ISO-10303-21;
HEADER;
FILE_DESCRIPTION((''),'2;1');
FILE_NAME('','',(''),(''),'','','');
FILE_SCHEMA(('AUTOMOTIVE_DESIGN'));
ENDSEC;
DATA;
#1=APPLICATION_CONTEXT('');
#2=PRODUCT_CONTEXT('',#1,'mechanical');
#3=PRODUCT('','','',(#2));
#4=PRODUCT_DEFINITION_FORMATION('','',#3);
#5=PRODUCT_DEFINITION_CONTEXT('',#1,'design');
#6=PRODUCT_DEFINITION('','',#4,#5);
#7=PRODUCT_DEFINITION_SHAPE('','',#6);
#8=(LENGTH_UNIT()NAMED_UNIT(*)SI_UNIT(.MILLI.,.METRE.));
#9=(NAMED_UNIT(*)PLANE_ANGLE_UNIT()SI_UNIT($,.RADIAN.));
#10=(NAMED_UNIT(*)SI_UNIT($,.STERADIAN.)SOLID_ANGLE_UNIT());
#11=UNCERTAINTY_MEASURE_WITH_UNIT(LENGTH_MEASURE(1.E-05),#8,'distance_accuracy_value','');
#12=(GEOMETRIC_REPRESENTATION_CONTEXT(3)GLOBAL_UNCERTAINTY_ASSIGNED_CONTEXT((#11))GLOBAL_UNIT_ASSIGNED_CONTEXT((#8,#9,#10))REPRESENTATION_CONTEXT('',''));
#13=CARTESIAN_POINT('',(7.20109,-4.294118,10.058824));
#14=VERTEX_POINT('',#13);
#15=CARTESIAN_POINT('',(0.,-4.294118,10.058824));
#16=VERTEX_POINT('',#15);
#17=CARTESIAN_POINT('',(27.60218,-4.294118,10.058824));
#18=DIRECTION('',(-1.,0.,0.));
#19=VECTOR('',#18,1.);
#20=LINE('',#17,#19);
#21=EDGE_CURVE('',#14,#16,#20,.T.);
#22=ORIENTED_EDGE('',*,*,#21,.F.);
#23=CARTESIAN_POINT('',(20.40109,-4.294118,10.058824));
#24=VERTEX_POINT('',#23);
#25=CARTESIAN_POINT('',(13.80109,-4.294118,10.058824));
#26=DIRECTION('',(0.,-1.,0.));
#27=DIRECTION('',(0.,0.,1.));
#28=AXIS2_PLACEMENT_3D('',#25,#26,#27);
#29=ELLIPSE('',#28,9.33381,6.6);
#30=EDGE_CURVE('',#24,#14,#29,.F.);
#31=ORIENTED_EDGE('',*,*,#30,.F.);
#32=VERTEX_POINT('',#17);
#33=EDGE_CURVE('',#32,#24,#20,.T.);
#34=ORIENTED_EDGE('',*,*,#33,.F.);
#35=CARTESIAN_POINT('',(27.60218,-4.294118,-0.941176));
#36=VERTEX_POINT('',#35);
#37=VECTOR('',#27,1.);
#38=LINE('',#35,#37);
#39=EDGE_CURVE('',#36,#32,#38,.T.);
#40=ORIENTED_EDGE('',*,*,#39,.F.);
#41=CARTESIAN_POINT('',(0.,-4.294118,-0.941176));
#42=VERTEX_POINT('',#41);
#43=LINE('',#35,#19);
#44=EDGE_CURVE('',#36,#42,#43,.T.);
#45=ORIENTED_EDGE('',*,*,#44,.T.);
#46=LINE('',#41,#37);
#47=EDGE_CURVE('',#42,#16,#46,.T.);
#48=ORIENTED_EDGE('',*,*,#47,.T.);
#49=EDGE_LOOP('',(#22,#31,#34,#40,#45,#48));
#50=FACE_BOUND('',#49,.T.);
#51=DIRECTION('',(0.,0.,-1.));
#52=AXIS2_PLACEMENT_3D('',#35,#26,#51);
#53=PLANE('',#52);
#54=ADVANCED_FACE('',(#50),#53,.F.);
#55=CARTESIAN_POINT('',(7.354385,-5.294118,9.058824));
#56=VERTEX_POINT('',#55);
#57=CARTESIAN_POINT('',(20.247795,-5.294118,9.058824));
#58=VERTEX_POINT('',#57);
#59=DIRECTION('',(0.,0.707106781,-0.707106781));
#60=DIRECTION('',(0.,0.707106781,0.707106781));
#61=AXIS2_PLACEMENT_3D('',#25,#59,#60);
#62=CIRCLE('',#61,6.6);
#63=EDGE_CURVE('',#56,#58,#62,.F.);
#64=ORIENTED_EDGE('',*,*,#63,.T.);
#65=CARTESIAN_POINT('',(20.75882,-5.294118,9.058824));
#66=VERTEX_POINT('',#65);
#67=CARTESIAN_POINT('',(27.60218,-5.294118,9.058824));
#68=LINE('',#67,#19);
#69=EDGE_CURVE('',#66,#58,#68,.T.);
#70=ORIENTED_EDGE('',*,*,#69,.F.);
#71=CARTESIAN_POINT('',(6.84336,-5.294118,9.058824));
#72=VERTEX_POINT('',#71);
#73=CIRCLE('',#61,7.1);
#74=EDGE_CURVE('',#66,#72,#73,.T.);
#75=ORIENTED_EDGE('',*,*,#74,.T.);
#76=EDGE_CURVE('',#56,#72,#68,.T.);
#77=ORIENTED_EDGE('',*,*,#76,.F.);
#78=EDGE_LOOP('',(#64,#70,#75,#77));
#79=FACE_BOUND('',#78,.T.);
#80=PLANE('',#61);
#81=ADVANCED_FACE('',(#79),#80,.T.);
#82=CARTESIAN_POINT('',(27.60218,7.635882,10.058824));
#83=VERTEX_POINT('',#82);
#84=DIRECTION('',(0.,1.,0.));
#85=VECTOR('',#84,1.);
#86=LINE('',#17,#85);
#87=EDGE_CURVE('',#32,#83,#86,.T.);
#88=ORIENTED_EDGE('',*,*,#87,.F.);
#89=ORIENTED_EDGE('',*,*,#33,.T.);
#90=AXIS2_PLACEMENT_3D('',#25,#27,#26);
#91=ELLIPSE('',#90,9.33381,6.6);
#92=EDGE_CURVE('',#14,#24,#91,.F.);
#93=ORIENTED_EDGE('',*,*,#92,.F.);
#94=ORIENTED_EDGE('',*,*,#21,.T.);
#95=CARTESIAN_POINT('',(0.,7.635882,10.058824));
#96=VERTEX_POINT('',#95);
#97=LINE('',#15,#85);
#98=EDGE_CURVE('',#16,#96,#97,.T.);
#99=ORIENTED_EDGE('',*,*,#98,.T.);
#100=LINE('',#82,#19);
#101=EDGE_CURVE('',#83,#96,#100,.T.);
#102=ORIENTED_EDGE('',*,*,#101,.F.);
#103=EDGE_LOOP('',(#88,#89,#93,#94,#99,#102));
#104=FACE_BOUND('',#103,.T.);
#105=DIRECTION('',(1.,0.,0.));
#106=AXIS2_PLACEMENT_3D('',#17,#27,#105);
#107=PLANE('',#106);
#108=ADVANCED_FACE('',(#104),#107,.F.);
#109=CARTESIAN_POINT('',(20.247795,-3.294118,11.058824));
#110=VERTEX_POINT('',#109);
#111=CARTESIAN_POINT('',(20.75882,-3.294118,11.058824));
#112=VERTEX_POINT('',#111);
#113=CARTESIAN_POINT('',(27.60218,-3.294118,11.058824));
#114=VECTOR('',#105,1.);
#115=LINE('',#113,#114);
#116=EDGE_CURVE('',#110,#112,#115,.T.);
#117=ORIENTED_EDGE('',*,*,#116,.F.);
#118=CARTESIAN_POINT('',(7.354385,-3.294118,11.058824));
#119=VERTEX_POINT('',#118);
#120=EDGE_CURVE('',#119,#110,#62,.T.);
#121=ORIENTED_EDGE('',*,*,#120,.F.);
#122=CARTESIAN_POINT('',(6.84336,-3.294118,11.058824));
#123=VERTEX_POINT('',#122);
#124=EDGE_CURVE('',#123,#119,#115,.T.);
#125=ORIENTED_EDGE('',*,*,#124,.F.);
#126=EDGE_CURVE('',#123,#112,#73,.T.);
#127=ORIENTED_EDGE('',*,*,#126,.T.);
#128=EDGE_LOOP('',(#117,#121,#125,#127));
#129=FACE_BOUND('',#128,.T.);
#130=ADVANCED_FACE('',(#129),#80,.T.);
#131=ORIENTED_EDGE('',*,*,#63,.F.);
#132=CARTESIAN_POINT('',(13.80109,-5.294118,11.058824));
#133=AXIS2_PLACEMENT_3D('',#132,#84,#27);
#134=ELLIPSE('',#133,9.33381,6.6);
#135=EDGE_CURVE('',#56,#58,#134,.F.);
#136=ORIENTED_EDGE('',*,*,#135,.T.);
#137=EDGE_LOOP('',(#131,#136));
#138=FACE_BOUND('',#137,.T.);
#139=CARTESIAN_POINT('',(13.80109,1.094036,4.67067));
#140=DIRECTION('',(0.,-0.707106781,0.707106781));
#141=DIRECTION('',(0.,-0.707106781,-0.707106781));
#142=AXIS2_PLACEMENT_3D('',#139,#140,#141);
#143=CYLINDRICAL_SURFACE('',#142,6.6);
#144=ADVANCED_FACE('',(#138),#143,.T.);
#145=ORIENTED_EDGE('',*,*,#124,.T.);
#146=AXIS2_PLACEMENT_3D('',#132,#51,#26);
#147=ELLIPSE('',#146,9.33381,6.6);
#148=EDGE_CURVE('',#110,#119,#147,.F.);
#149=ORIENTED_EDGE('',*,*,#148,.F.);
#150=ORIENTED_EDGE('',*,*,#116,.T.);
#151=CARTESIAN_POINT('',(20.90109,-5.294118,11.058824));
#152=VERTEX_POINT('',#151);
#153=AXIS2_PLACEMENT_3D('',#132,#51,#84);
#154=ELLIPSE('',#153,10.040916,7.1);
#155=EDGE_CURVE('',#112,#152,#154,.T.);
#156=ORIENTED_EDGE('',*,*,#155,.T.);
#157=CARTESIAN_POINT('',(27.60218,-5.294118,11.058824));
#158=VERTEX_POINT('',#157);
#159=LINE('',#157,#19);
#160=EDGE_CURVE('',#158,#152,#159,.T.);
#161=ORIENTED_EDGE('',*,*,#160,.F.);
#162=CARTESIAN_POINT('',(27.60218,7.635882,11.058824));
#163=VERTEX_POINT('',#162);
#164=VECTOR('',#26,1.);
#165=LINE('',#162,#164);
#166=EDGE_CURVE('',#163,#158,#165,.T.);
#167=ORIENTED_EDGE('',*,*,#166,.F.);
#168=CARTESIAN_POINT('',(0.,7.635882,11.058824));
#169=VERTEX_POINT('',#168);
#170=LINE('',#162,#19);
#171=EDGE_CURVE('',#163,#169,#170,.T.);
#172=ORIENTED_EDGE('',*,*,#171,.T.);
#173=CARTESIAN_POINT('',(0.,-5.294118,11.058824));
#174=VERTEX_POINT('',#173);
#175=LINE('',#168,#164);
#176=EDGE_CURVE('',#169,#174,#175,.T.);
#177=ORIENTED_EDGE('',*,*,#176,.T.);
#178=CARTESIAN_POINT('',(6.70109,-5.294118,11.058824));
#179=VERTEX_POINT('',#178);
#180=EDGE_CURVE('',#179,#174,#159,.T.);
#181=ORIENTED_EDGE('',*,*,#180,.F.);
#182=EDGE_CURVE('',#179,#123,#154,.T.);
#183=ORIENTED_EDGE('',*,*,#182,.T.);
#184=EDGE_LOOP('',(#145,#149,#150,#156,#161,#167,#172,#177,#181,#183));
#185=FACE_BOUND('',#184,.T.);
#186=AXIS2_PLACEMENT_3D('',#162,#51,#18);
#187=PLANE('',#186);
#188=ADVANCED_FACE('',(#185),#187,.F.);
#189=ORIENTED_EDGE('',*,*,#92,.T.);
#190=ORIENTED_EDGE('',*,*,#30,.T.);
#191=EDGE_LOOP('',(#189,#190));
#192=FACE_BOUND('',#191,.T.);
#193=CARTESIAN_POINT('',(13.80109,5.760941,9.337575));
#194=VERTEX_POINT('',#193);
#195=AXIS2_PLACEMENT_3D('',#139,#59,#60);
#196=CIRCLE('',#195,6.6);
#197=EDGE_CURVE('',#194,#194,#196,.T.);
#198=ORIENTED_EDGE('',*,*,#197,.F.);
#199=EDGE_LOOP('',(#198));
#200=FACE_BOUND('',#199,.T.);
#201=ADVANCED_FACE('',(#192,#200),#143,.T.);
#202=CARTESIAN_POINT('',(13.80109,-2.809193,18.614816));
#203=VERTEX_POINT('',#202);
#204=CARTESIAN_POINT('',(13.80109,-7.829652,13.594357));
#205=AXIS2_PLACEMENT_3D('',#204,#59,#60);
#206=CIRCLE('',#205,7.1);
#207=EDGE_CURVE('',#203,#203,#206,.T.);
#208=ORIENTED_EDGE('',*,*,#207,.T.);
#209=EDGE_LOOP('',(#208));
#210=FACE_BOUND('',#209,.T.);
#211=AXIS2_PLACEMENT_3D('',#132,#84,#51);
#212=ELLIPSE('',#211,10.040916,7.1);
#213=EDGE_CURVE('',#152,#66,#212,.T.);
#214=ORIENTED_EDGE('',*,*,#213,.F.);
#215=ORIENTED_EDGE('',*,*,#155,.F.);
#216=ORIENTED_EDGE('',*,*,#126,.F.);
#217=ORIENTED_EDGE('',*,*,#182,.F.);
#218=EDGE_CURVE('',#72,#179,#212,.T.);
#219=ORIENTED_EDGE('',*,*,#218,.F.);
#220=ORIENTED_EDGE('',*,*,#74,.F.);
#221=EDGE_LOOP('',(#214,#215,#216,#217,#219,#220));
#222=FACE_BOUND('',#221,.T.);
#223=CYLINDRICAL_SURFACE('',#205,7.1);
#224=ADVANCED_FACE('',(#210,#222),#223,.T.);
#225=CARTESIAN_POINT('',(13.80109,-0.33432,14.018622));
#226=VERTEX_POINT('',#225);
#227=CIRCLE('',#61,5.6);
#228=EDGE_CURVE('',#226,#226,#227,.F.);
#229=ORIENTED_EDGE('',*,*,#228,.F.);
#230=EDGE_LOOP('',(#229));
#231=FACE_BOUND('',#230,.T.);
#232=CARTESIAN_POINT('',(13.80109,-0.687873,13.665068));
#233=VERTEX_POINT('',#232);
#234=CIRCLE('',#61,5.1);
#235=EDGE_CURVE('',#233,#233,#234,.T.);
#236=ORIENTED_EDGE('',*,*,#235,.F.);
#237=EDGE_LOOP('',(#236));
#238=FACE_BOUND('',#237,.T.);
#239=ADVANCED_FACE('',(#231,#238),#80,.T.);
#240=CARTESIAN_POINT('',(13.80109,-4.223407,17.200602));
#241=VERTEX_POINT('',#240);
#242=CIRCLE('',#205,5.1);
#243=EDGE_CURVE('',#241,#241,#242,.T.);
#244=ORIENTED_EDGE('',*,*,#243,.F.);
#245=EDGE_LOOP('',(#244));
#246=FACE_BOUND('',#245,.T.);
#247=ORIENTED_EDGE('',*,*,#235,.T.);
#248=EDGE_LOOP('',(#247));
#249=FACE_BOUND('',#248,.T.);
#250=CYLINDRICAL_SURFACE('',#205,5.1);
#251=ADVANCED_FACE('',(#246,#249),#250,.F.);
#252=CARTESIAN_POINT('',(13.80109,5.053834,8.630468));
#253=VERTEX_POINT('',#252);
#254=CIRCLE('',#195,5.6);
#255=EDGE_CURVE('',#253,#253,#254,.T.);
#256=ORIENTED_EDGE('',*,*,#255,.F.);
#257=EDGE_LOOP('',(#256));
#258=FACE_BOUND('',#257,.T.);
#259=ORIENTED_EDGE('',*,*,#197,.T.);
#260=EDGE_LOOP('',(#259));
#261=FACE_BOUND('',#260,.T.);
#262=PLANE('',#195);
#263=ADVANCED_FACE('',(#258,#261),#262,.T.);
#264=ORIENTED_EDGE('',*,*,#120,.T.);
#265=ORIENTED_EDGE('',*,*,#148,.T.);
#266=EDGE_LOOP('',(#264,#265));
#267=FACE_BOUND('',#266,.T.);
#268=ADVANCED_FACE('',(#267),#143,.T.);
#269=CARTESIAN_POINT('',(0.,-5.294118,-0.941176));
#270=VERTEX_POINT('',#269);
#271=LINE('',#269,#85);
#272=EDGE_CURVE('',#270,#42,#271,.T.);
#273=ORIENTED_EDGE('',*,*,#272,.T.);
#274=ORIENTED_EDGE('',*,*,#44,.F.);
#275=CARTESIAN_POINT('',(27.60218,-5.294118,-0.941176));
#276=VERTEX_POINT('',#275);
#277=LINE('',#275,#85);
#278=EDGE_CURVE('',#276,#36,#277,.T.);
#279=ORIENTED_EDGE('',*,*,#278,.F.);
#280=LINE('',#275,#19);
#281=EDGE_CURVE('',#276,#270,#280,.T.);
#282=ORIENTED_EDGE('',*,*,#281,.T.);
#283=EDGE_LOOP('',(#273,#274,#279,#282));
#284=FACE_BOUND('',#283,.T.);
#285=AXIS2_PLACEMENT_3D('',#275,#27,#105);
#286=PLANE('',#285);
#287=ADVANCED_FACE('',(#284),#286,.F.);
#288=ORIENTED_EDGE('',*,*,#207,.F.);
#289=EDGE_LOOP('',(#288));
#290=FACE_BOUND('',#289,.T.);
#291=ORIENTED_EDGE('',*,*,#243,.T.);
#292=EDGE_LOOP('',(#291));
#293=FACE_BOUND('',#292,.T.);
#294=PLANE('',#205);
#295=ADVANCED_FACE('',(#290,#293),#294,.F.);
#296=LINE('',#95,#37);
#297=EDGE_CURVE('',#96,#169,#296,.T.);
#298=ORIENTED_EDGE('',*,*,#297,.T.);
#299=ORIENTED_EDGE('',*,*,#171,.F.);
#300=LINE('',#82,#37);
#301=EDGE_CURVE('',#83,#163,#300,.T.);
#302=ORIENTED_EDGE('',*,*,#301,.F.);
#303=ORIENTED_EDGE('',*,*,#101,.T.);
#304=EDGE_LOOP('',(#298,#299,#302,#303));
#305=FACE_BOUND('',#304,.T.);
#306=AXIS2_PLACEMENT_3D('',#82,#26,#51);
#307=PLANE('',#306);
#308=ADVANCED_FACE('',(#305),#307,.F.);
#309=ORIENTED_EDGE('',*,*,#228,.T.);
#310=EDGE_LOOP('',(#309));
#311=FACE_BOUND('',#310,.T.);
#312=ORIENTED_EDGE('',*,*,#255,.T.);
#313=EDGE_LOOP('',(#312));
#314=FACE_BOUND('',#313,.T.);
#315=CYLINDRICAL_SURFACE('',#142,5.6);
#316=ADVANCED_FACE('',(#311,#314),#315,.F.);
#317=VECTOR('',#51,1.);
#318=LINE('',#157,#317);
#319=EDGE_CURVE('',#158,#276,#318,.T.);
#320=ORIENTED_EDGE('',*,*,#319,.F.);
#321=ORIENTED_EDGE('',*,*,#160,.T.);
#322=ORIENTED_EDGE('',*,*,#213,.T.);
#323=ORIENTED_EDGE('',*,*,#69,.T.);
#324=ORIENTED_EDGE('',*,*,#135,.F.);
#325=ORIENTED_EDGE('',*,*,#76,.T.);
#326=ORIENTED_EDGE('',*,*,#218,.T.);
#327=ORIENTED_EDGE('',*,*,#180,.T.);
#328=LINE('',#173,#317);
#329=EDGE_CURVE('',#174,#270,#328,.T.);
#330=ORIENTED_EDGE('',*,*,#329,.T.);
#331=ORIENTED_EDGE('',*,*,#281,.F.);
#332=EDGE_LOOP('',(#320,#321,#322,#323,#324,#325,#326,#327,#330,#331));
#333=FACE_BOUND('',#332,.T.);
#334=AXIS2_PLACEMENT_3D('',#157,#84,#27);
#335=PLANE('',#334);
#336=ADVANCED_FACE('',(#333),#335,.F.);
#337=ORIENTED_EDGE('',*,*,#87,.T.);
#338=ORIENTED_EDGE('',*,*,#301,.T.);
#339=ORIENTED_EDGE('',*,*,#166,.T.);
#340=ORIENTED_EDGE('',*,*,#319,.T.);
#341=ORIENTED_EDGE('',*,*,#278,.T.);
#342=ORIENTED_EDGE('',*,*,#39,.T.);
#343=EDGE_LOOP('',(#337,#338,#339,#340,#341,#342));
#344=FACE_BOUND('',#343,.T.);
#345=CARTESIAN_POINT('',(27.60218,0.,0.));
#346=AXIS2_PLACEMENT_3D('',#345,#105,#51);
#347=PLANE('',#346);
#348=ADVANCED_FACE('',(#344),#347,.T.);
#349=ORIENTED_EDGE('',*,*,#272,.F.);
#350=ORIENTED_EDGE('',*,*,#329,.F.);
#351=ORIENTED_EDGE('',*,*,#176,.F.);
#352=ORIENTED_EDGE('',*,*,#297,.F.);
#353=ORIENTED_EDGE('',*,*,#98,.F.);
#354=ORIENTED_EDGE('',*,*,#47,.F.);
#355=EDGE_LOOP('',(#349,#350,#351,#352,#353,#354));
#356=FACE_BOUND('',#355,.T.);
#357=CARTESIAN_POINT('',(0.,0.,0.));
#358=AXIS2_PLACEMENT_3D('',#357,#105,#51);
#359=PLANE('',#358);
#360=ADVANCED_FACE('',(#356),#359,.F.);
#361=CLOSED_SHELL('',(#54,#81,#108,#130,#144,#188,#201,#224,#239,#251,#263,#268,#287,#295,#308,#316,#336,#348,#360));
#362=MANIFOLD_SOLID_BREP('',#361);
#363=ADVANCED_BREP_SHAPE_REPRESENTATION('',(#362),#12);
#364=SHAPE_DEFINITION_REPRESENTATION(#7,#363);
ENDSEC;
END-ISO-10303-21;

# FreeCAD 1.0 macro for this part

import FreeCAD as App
import Part
import Sketcher
from FreeCAD import Vector
Q = App.Units.Quantity

doc = App.newDocument("Part")
body = doc.addObject("PartDesign::Body", "Body")

sketch1 = body.newObject("Sketcher::SketchObject", "Sketch")
sketch1.AttachmentSupport = (doc.getObject("YZ_Plane"), [""])
sketch1.MapMode = "FlatFace"
sketch1.addGeometry([
    Part.LineSegment(Vector(7.6, 11.1, 0), Vector(-5.3, 11.1, 0)),
    Part.LineSegment(Vector(-5.3, 11.1, 0), Vector(-5.3, -0.9, 0)),
    Part.LineSegment(Vector(-5.3, -0.9, 0), Vector(-4.3, -0.9, 0)),
    Part.LineSegment(Vector(-4.3, -0.9, 0), Vector(-4.3, 10.1, 0)),
    Part.LineSegment(Vector(-4.3, 10.1, 0), Vector(7.6, 10.1, 0)),
    Part.LineSegment(Vector(7.6, 10.1, 0), Vector(7.6, 11.1, 0)),
], False)
sketch1.addConstraint([
    Sketcher.Constraint("Coincident", 0, 2, 1, 1),
    Sketcher.Constraint("Coincident", 1, 2, 2, 1),
    Sketcher.Constraint("Coincident", 2, 2, 3, 1),
    Sketcher.Constraint("Coincident", 3, 2, 4, 1),
    Sketcher.Constraint("Coincident", 4, 2, 5, 1),
    Sketcher.Constraint("Coincident", 5, 2, 0, 1),
    Sketcher.Constraint("Horizontal", 0),
    Sketcher.Constraint("Vertical", 1),
    Sketcher.Constraint("Horizontal", 2),
    Sketcher.Constraint("Vertical", 3),
    Sketcher.Constraint("Horizontal", 4),
    Sketcher.Constraint("Vertical", 5),
    Sketcher.Constraint("Equal", 2, 5),
    Sketcher.Constraint("DistanceX", 2, 1, 2, 2, Q("1 mm")),
    Sketcher.Constraint("DistanceY", 1, 2, 1, 1, Q("12 mm")),
    Sketcher.Constraint("DistanceX", 0, 2, 0, 1, Q("12.93 mm")),
    Sketcher.Constraint("DistanceX", 0, 2, -1, 1, Q("5.294118 mm")),
    Sketcher.Constraint("DistanceY", -1, 1, 0, 2, Q("11.058824 mm")),
])
pad1 = body.newObject("PartDesign::Pad", "Pad")
pad1.Profile = sketch1
pad1.Length = 27.60218

sketch2 = body.newObject("Sketcher::SketchObject", "Sketch001")
sketch2.Placement = App.Placement(Vector(0, -7.176471, 7.176471), App.Rotation(Vector(-1, 0, 0), Vector(0, 0.707106781, 0.707106781), Vector(0, 0.707106781, -0.707106781), "ZXY"))
sketch2.addGeometry([
    Part.Circle(Vector(-14, 4, 0), Vector(0, 0, 1), 7),
    Part.Circle(Vector(-14, 4, 0), Vector(0, 0, 1), 5),
], False)
sketch2.addConstraint([
    Sketcher.Constraint("Coincident", 1, 3, 0, 3),
    Sketcher.Constraint("Diameter", 0, Q("14.2 mm")),
    Sketcher.Constraint("Diameter", 1, Q("10.2 mm")),
    Sketcher.Constraint("DistanceX", 0, 3, -1, 1, Q("13.80109 mm")),
    Sketcher.Constraint("DistanceY", -1, 1, 0, 3, Q("4.076263 mm")),
])
pad2 = body.newObject("PartDesign::Pad", "Pad001")
pad2.Profile = sketch2
pad2.Length = 5
pad2.Reversed = True

sketch3 = body.newObject("Sketcher::SketchObject", "Sketch002")
sketch3.Placement = App.Placement(Vector(0, -7.176471, 7.176471), App.Rotation(Vector(-1, 0, 0), Vector(0, 0.707106781, 0.707106781), Vector(0, 0.707106781, -0.707106781), "ZXY"))
sketch3.addGeometry([
    Part.Circle(Vector(-14, 4, 0), Vector(0, 0, 1), 7),
    Part.Circle(Vector(-14, 4, 0), Vector(0, 0, 1), 6),
], False)
sketch3.addConstraint([
    Sketcher.Constraint("Coincident", 1, 3, 0, 3),
    Sketcher.Constraint("Diameter", 0, Q("13.2 mm")),
    Sketcher.Constraint("Diameter", 1, Q("11.2 mm")),
    Sketcher.Constraint("DistanceX", 0, 3, -1, 1, Q("13.80109 mm")),
    Sketcher.Constraint("DistanceY", -1, 1, 0, 3, Q("4.076263 mm")),
])
pad3 = body.newObject("PartDesign::Pad", "Pad002")
pad3.Profile = sketch3
pad3.Length = 7.62

sketch4 = body.newObject("Sketcher::SketchObject", "Sketch003")
sketch4.Placement = App.Placement(Vector(0, -7.176471, 7.176471), App.Rotation(Vector(1, 0, 0), Vector(0, -0.707106781, -0.707106781), Vector(0, 0.707106781, -0.707106781), "ZXY"))
sketch4.addGeometry(Part.Circle(Vector(14, -4, 0), Vector(0, 0, 1), 6), False)
sketch4.addConstraint([
    Sketcher.Constraint("Diameter", 0, Q("11.2 mm")),
    Sketcher.Constraint("DistanceX", -1, 1, 0, 3, Q("13.80109 mm")),
    Sketcher.Constraint("DistanceY", 0, 3, -1, 1, Q("4.076263 mm")),
])
pocket1 = body.newObject("PartDesign::Pocket", "Pocket")
pocket1.Profile = sketch4
pocket1.Length = 7.62
pocket1.Reversed = True

sketch5 = body.newObject("Sketcher::SketchObject", "Sketch004")
sketch5.Placement = App.Placement(Vector(0, -1.788317, 1.788317), App.Rotation(Vector(1, 0, 0), Vector(0, -0.707106781, -0.707106781), Vector(0, 0.707106781, -0.707106781), "ZXY"))
sketch5.addGeometry(Part.Circle(Vector(14, -4, 0), Vector(0, 0, 1), 5), False)
sketch5.addConstraint([
    Sketcher.Constraint("Diameter", 0, Q("10.2 mm")),
    Sketcher.Constraint("DistanceX", -1, 1, 0, 3, Q("13.80109 mm")),
    Sketcher.Constraint("DistanceY", 0, 3, -1, 1, Q("4.076263 mm")),
])
pocket2 = body.newObject("PartDesign::Pocket", "Pocket001")
pocket2.Profile = sketch5
pocket2.Length = 19.05

doc.recompute()
